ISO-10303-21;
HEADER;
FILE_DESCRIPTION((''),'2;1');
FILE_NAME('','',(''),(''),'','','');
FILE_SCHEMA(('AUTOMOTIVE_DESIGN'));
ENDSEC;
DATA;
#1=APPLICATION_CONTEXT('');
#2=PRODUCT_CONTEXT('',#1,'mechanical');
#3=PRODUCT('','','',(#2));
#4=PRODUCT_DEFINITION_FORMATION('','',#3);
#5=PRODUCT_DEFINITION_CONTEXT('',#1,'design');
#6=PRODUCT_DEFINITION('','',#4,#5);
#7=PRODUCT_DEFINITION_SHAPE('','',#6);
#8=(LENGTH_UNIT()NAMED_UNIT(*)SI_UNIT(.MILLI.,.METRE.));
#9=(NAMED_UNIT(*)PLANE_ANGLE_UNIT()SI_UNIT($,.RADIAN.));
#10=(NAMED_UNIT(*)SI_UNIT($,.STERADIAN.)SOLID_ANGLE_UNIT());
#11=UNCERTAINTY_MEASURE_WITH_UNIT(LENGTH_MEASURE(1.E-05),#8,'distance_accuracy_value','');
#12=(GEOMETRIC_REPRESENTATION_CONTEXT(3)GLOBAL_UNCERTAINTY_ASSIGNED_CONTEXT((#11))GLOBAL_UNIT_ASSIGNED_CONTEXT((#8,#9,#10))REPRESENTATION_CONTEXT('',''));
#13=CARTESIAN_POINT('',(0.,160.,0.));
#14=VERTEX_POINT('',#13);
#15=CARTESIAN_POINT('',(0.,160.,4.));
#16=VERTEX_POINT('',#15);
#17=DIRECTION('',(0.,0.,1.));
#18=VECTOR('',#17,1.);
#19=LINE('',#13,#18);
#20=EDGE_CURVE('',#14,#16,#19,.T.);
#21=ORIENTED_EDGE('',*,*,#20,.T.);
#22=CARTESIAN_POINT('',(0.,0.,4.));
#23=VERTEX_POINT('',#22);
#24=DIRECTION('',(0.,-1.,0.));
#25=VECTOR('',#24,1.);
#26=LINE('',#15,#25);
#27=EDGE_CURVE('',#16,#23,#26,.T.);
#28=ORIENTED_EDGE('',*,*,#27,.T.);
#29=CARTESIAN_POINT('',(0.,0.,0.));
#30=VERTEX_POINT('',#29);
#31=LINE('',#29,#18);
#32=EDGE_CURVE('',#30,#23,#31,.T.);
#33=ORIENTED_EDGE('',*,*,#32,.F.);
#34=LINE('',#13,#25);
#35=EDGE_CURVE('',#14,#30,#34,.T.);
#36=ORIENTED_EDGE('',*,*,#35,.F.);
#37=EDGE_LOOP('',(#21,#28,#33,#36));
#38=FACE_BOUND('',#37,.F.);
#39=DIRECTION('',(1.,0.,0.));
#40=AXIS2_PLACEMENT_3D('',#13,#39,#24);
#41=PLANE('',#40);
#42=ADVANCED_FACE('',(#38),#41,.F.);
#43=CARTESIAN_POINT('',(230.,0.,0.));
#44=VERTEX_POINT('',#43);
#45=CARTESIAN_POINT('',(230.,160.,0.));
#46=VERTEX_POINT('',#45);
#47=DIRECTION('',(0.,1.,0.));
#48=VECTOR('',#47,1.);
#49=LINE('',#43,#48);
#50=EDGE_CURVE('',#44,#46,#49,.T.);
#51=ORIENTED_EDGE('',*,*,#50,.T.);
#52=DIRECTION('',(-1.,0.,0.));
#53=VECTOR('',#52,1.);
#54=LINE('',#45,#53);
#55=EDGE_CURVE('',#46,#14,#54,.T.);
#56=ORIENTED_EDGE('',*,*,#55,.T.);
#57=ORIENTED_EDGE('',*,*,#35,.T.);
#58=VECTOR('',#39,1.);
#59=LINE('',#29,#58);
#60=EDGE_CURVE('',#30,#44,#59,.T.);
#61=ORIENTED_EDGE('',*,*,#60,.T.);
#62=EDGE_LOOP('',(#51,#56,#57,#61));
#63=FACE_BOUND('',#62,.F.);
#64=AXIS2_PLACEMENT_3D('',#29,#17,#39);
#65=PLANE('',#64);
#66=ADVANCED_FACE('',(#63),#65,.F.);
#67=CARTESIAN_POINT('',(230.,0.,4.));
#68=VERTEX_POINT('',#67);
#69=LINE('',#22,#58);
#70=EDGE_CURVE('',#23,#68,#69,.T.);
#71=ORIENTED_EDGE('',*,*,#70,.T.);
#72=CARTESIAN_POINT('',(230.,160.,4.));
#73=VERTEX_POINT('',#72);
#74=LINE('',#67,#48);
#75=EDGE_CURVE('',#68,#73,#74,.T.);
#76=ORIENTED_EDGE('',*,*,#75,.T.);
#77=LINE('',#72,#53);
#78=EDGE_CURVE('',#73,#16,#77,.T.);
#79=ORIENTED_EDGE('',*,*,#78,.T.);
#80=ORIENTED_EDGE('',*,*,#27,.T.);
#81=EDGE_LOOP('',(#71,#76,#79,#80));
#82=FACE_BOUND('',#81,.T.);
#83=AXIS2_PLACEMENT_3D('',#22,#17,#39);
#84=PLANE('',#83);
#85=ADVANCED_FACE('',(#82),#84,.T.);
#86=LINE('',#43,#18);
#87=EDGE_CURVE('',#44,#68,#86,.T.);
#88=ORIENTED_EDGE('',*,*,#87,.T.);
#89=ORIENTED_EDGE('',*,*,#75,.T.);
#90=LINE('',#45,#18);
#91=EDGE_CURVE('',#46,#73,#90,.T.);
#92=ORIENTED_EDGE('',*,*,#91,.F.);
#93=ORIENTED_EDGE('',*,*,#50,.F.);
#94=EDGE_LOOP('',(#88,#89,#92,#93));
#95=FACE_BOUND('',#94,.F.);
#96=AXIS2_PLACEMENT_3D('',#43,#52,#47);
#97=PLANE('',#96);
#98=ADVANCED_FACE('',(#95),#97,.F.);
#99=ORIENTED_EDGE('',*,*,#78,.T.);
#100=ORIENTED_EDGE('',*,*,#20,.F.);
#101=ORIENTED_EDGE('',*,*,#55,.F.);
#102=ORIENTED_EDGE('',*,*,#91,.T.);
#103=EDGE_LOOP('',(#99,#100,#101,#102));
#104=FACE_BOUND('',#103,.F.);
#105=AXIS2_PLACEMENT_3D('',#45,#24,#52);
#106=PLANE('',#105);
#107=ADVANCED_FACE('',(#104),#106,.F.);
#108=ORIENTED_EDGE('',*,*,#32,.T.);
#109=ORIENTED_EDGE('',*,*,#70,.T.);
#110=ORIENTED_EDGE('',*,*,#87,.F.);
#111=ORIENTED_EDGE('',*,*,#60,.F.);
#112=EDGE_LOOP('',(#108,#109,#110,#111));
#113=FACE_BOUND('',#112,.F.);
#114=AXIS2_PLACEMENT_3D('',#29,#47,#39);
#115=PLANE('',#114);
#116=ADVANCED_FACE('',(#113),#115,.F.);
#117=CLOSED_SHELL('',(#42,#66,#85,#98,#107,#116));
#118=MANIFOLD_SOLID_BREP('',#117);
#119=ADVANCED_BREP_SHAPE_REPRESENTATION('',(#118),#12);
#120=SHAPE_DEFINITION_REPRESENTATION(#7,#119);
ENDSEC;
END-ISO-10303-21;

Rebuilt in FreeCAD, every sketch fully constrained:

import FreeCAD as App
import Part
import Sketcher

V = App.Vector
Q = App.Units.Quantity

doc = App.newDocument("Part")
body = doc.addObject("PartDesign::Body", "Body")

sketch1 = doc.addObject("Sketcher::SketchObject", "Sketch")
body.addObject(sketch1)
sketch1.AttachmentSupport = (doc.XY_Plane, [""])
sketch1.MapMode = "FlatFace"
sketch1.addGeometry(Part.LineSegment(V(0, 160, 0), V(0, 0, 0)), False)
sketch1.addGeometry(Part.LineSegment(V(0, 0, 0), V(230, 0, 0)), False)
sketch1.addGeometry(Part.LineSegment(V(230, 0, 0), V(230, 160, 0)), False)
sketch1.addGeometry(Part.LineSegment(V(230, 160, 0), V(0, 160, 0)), False)
sketch1.addConstraint(Sketcher.Constraint("Coincident", 0, 2, 1, 1))
sketch1.addConstraint(Sketcher.Constraint("Coincident", 1, 2, 2, 1))
sketch1.addConstraint(Sketcher.Constraint("Coincident", 2, 2, 3, 1))
sketch1.addConstraint(Sketcher.Constraint("Coincident", 3, 2, 0, 1))
sketch1.addConstraint(Sketcher.Constraint("Vertical", 0))
sketch1.addConstraint(Sketcher.Constraint("Horizontal", 1))
sketch1.addConstraint(Sketcher.Constraint("Vertical", 2))
sketch1.addConstraint(Sketcher.Constraint("Horizontal", 3))
sketch1.addConstraint(Sketcher.Constraint("Coincident", 0, 2, -1, 1))
sketch1.addConstraint(Sketcher.Constraint("DistanceX", 1, 1, 1, 2, Q("230 mm")))
sketch1.addConstraint(Sketcher.Constraint("DistanceY", 0, 2, 0, 1, Q("160 mm")))
pad1 = doc.addObject("PartDesign::Pad", "Pad")
body.addObject(pad1)
pad1.Profile = sketch1
pad1.Length = 4

doc.recompute()
